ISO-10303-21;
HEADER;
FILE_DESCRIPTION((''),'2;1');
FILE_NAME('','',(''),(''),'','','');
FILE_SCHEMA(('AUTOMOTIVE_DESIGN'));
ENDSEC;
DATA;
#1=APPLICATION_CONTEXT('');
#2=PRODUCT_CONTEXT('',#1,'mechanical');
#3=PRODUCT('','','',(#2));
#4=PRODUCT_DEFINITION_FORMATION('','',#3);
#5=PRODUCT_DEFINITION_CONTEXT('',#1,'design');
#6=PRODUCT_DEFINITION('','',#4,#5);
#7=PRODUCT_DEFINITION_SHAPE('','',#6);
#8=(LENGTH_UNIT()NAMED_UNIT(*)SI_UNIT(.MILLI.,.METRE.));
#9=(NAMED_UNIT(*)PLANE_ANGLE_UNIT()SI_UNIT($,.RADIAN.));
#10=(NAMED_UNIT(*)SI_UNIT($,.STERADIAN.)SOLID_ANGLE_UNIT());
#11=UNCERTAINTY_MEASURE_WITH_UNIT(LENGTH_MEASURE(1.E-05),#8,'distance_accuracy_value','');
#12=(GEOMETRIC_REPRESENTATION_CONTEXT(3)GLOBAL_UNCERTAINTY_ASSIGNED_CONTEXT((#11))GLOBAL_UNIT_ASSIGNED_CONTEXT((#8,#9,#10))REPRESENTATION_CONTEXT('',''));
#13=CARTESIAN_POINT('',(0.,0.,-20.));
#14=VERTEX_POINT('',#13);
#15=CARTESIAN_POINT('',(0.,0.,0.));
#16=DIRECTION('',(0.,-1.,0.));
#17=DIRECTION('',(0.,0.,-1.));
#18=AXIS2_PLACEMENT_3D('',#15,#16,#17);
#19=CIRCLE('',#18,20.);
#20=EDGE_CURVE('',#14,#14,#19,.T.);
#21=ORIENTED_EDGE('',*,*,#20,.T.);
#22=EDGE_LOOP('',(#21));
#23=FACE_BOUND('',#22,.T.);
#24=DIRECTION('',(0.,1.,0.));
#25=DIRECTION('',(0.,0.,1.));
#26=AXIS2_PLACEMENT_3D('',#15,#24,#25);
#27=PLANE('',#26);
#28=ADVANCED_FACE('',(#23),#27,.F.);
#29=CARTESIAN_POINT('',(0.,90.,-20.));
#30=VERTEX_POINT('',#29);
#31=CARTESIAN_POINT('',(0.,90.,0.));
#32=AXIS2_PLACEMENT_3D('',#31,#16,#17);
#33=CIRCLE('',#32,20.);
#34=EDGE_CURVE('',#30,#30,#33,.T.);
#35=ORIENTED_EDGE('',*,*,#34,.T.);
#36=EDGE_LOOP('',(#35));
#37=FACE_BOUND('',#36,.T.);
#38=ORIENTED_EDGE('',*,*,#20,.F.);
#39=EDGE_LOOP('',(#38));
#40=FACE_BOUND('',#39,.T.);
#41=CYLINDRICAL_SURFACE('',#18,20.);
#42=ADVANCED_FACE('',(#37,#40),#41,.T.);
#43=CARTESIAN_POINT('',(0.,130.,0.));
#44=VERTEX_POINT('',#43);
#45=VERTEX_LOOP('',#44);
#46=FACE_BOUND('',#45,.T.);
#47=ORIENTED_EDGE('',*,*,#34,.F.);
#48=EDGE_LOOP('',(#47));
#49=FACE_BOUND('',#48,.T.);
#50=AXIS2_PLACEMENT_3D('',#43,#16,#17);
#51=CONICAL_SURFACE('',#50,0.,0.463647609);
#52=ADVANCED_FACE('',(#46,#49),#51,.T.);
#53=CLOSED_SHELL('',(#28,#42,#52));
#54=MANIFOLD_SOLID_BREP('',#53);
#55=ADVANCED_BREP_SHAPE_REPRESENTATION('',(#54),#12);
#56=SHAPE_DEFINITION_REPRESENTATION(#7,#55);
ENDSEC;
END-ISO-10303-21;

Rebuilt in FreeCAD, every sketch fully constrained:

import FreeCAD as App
import Part
import Sketcher

V = App.Vector
Q = App.Units.Quantity

doc = App.newDocument("Part")
params = doc.addObject("Spreadsheet::Sheet", "Params")
for row, (alias, value) in enumerate([
    ("sketch1_width", "20 mm"),
    ("sketch1_height", "90 mm"),
    ("sketch1_height2", "130 mm"),
    ("revolution_angle", "360 deg"),
], start=1):
    params.set(f"A{row}", alias)
    params.set(f"B{row}", "=" + value)
    params.setAlias(f"B{row}", alias)

body = doc.addObject("PartDesign::Body", "Body")

sketch1 = body.newObject("Sketcher::SketchObject", "Sketch")
sketch1.AttachmentSupport = (doc.getObject("XY_Plane"), [""])
sketch1.MapMode = "FlatFace"
sketch1.addGeometry([
    Part.LineSegment(V(0, 0, 0), V(20, 0, 0)),
    Part.LineSegment(V(20, 0, 0), V(20, 90, 0)),
    Part.LineSegment(V(20, 90, 0), V(0, 130, 0)),
    Part.LineSegment(V(0, 130, 0), V(0, 0, 0)),
], False)
sketch1.addConstraint([
    Sketcher.Constraint("Coincident", 0, 2, 1, 1),
    Sketcher.Constraint("Coincident", 1, 2, 2, 1),
    Sketcher.Constraint("Coincident", 2, 2, 3, 1),
    Sketcher.Constraint("Coincident", 3, 2, 0, 1),
    Sketcher.Constraint("Horizontal", 0),
    Sketcher.Constraint("Vertical", 1),
    Sketcher.Constraint("Vertical", 3),
    Sketcher.Constraint("Coincident", 3, 2, -1, 1),
    Sketcher.Constraint("DistanceX", 0, 1, 0, 2, Q("20 mm")),
    Sketcher.Constraint("DistanceY", 1, 1, 1, 2, Q("90 mm")),
    Sketcher.Constraint("DistanceY", 3, 2, 3, 1, Q("130 mm")),
])
sketch1.setExpression("Constraints[8]", "Params.sketch1_width")
sketch1.setExpression("Constraints[9]", "Params.sketch1_height")
sketch1.setExpression("Constraints[10]", "Params.sketch1_height2")
revolution = body.newObject("PartDesign::Revolution", "Revolution")
revolution.Profile = sketch1
revolution.ReferenceAxis = (sketch1, ["V_Axis"])
revolution.setExpression("Angle", "Params.revolution_angle")

doc.recompute()
